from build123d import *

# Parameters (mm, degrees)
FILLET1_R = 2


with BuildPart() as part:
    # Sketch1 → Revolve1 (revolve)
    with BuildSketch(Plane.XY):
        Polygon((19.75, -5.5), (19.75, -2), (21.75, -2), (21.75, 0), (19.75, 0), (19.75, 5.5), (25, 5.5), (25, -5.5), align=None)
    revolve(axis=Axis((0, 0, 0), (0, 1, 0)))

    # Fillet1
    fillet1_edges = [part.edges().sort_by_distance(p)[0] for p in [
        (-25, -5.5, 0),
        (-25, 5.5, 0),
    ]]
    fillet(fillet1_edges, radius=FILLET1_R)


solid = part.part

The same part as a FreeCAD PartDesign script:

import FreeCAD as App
import Part
import Sketcher

V = App.Vector


def edges_at(feature, points):
    """Names of the edges that pass closest to the given points."""
    edges = feature.Shape.Edges
    near = lambda p: min(range(len(edges)), key=lambda i: edges[i].distToShape(Part.Vertex(*p))[0])
    return sorted({f"Edge{near(p) + 1}" for p in points})


def add_polygon(sketch, points):
    """Adds a closed chain of lines whose ends are joined by coincident constraints."""
    first, n = sketch.GeometryCount, len(points)
    for a, b in zip(points, points[1:] + points[:1]):
        sketch.addGeometry(Part.LineSegment(App.Vector(*a, 0), App.Vector(*b, 0)), False)
    for i in range(n):
        sketch.addConstraint(Sketcher.Constraint("Coincident", first + i, 2, first + (i + 1) % n, 1))

doc = App.newDocument("Part")
body = doc.addObject("PartDesign::Body", "Body")

# Sketch on XY plane
sketch1 = doc.addObject("Sketcher::SketchObject", "Sketch")
body.addObject(sketch1)
sketch1.AttachmentSupport = (doc.XY_Plane, [""])
sketch1.MapMode = "FlatFace"
add_polygon(sketch1, [(19.75, -2), (19.75, -5.5), (25, -5.5), (25, 5.5), (19.75, 5.5), (19.75, 0), (21.75, 0), (21.75, -2)])  # lines 0-7
sketch1.addConstraint([
    Sketcher.Constraint("Vertical", 0),
    Sketcher.Constraint("Horizontal", 1),
    Sketcher.Constraint("Vertical", 2),
    Sketcher.Constraint("Horizontal", 3),
    Sketcher.Constraint("Vertical", 4),
    Sketcher.Constraint("Horizontal", 5),
    Sketcher.Constraint("Vertical", 6),
    Sketcher.Constraint("Horizontal", 7),
    Sketcher.Constraint("Symmetric", 0, 2, 3, 2, -1),
    Sketcher.Constraint("PointOnObject", 4, 2, -1),
    Sketcher.Constraint("Equal", 7, 6),
    Sketcher.Constraint("DistanceX", 5, 1, 5, 2, 2.0),
    Sketcher.Constraint("DistanceY", 2, 1, 2, 2, 11.0),
    Sketcher.Constraint("DistanceX", -1, 1, 1, 2, 25.0),
    Sketcher.Constraint("DistanceX", 1, 1, 1, 2, 5.25),
])
revolution = doc.addObject("PartDesign::Revolution", "Revolution")
body.addObject(revolution)
revolution.Profile = sketch1
revolution.ReferenceAxis = (sketch1, ["V_Axis"])
revolution.Angle = 360
doc.recompute()

fillet = doc.addObject("PartDesign::Fillet", "Fillet")
body.addObject(fillet)
fillet.Base = (revolution, edges_at(revolution, [(-25, -5.5, 0), (-25, 5.5, 0)]))
fillet.Radius = 2

doc.recompute()
